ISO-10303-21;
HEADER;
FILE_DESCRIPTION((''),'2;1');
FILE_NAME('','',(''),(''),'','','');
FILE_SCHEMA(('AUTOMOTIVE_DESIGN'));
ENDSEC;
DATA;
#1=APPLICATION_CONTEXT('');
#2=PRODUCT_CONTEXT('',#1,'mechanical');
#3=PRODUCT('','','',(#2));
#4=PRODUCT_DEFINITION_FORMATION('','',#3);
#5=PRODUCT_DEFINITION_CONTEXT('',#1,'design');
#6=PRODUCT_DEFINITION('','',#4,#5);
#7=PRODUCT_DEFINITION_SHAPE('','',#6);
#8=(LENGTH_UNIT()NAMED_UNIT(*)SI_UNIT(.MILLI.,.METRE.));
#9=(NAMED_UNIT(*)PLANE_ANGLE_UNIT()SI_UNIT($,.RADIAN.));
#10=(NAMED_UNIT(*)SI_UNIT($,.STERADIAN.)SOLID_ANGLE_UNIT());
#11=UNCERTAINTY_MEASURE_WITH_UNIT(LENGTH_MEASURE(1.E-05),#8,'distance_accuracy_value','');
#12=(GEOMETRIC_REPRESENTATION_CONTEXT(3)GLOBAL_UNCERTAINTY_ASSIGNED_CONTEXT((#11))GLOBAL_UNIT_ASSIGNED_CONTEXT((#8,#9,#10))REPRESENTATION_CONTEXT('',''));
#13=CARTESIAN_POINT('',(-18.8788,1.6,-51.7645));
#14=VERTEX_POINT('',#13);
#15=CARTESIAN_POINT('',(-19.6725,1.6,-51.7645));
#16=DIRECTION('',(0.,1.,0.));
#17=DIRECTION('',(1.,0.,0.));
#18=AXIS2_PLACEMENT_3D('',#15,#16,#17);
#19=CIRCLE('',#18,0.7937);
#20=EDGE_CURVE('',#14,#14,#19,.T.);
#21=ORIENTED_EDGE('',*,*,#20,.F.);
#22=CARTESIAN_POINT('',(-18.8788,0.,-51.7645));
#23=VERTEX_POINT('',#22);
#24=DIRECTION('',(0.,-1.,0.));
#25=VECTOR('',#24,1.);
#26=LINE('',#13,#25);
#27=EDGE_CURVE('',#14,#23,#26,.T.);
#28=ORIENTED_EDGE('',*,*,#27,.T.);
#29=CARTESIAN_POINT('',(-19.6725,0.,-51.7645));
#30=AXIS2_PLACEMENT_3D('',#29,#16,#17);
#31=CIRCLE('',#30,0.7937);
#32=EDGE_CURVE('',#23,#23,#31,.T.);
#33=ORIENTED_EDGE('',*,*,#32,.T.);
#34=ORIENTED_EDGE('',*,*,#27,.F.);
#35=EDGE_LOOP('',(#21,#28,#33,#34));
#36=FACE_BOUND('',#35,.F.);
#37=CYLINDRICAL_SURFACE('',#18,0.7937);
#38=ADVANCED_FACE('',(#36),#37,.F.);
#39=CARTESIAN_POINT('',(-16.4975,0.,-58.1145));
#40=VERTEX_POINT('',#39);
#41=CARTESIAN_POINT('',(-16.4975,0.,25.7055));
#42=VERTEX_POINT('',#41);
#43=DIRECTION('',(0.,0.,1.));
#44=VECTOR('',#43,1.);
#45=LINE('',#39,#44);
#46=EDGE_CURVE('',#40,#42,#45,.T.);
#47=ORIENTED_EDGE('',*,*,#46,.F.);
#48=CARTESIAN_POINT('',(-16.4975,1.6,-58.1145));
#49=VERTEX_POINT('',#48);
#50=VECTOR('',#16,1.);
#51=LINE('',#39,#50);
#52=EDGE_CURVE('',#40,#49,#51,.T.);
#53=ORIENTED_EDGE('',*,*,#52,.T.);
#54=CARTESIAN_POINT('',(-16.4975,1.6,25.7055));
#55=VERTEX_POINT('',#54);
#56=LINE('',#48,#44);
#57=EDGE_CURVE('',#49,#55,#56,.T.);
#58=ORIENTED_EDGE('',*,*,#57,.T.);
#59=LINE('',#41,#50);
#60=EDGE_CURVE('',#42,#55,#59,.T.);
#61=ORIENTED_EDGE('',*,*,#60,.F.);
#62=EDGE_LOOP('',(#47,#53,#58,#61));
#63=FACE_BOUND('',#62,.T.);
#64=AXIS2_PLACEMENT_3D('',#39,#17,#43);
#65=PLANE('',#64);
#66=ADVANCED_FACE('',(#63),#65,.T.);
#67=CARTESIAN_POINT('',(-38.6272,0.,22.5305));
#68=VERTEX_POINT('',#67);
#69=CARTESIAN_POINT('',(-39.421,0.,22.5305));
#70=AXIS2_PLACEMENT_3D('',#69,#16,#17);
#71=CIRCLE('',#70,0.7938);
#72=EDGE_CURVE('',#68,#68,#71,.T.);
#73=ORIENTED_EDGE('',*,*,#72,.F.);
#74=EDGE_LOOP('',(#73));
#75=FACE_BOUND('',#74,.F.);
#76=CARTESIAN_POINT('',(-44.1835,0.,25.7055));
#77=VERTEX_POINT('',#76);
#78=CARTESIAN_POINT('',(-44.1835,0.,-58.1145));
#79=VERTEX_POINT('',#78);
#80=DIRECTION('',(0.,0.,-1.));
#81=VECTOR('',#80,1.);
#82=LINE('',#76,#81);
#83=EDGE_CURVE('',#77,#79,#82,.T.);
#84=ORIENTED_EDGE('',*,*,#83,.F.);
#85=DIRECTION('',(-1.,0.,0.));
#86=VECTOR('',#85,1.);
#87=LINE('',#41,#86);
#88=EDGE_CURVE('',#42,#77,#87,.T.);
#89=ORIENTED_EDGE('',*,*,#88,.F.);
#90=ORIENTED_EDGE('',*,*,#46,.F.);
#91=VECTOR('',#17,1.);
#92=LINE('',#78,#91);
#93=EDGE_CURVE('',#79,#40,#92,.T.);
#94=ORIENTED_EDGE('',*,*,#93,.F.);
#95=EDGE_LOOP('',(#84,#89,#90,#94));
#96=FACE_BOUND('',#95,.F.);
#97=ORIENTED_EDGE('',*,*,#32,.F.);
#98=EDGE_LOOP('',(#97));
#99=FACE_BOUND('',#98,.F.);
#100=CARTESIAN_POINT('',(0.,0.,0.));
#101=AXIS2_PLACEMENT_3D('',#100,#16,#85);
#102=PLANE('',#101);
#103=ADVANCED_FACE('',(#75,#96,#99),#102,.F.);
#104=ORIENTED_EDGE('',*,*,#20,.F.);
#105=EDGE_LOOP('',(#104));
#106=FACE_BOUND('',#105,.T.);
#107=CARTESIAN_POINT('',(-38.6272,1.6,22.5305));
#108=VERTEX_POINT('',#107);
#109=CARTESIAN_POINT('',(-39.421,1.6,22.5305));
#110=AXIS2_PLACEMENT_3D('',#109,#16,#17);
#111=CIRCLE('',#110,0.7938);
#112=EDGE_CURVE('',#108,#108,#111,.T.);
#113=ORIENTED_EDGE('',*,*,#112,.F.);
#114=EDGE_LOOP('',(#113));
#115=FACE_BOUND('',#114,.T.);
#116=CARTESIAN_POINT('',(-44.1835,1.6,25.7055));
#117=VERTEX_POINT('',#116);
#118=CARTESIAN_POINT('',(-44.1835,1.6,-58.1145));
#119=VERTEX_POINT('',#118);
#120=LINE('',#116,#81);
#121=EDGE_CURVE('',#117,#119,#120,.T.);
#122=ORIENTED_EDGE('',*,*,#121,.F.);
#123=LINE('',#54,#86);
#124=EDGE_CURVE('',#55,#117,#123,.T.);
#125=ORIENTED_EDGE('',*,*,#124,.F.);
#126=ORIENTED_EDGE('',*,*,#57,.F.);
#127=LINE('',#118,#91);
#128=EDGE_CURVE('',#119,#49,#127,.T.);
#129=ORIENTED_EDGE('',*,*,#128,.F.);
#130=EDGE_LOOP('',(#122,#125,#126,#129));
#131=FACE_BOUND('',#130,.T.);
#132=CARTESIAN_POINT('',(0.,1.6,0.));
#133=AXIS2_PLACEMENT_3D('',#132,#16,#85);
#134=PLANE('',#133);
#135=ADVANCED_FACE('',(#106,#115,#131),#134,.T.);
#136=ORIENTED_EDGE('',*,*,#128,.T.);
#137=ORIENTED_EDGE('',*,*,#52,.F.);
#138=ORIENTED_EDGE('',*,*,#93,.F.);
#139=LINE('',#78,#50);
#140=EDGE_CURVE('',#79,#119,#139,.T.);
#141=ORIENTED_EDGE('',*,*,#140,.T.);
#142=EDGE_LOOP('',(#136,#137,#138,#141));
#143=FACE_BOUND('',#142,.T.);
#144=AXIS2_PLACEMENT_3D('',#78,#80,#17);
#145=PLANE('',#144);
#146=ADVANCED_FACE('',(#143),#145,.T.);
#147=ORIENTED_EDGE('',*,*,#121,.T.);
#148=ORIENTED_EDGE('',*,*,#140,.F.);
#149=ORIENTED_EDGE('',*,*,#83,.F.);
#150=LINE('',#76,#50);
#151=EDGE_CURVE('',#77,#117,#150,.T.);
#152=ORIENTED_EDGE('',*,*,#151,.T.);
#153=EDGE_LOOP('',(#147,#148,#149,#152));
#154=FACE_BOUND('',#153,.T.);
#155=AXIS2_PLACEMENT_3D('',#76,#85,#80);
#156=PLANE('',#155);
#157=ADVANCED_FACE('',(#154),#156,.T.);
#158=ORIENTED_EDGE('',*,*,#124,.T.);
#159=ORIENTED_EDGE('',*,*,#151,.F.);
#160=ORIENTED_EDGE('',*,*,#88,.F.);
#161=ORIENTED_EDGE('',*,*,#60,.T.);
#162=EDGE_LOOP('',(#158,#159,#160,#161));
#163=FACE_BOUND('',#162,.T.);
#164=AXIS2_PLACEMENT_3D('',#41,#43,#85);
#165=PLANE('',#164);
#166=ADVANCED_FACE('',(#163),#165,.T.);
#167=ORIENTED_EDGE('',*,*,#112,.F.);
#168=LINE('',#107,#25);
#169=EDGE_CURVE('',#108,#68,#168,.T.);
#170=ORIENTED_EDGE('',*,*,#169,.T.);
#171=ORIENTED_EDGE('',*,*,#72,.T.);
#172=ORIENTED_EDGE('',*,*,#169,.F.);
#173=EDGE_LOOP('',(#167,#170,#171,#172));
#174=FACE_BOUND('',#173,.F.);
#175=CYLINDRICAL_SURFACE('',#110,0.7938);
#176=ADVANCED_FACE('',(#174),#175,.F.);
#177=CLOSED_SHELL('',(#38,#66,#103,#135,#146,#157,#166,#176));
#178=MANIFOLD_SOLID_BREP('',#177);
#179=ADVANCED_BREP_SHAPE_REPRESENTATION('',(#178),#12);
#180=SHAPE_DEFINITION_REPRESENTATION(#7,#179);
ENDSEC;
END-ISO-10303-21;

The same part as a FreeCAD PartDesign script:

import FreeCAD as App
import Part
import Sketcher

V = App.Vector
Q = App.Units.Quantity

doc = App.newDocument("Part")
body = doc.addObject("PartDesign::Body", "Body")

# Sketch on XZ plane
sketch1 = body.newObject("Sketcher::SketchObject", "Sketch")
sketch1.AttachmentSupport = (doc.getObject("XZ_Plane"), [""])
sketch1.MapMode = "FlatFace"
sketch1.addGeometry(Part.LineSegment(V(-44, 26, 0), V(-16, 26, 0)), False)
sketch1.addGeometry(Part.LineSegment(V(-16, 26, 0), V(-16, -58, 0)), False)
sketch1.addGeometry(Part.LineSegment(V(-16, -58, 0), V(-44, -58, 0)), False)
sketch1.addGeometry(Part.LineSegment(V(-44, -58, 0), V(-44, 26, 0)), False)
sketch1.addConstraint(Sketcher.Constraint("Coincident", 0, 2, 1, 1))
sketch1.addConstraint(Sketcher.Constraint("Coincident", 1, 2, 2, 1))
sketch1.addConstraint(Sketcher.Constraint("Coincident", 2, 2, 3, 1))
sketch1.addConstraint(Sketcher.Constraint("Coincident", 3, 2, 0, 1))
sketch1.addConstraint(Sketcher.Constraint("Horizontal", 0))
sketch1.addConstraint(Sketcher.Constraint("Vertical", 1))
sketch1.addConstraint(Sketcher.Constraint("Horizontal", 2))
sketch1.addConstraint(Sketcher.Constraint("Vertical", 3))
sketch1.addConstraint(Sketcher.Constraint("DistanceY", 1, 2, 1, 1, Q("3.3 in")))
sketch1.addConstraint(Sketcher.Constraint("DistanceX", 0, 1, 0, 2, Q("1.09 in")))
sketch1.addConstraint(Sketcher.Constraint("DistanceX", 0, 2, -1, 1, Q("0.6495 in")))
sketch1.addConstraint(Sketcher.Constraint("DistanceY", -1, 1, 0, 2, 25.7055))
pad1 = body.newObject("PartDesign::Pad", "Pad")
pad1.Profile = sketch1
pad1.Length = Q("0.0629921 in")
pad1.Reversed = True

# Sketch on XZ plane
sketch2 = body.newObject("Sketcher::SketchObject", "Sketch001")
sketch2.AttachmentSupport = (doc.getObject("XZ_Plane"), [""])
sketch2.MapMode = "FlatFace"
sketch2.AttachmentOffset = App.Placement(V(0, 0, -0.0629921 * 25.4), App.Rotation())
sketch2.addGeometry(Part.Circle(V(-19.7, -51.8, 0), V(0, 0, 1), 0.8), False)
sketch2.addGeometry(Part.Circle(V(-39.4, 22.5, 0), V(0, 0, 1), 0.8), False)
sketch2.addConstraint(Sketcher.Constraint("Equal", 0, 1))
sketch2.addConstraint(Sketcher.Constraint("Diameter", 0, Q("0.0625 in")))
sketch2.addConstraint(Sketcher.Constraint("DistanceX", 1, 3, -1, 1, Q("1.552 in")))
sketch2.addConstraint(Sketcher.Constraint("DistanceY", 0, 3, 1, 3, Q("2.925 in")))
sketch2.addConstraint(Sketcher.Constraint("DistanceX", 0, 3, -1, 1, Q("0.7745 in")))
sketch2.addConstraint(Sketcher.Constraint("DistanceY", 0, 3, -1, 1, 51.7645))
pocket1 = body.newObject("PartDesign::Pocket", "Pocket")
pocket1.Profile = sketch2
pocket1.Length = Q("0.0629921 in")
pocket1.Reversed = True

doc.recompute()
